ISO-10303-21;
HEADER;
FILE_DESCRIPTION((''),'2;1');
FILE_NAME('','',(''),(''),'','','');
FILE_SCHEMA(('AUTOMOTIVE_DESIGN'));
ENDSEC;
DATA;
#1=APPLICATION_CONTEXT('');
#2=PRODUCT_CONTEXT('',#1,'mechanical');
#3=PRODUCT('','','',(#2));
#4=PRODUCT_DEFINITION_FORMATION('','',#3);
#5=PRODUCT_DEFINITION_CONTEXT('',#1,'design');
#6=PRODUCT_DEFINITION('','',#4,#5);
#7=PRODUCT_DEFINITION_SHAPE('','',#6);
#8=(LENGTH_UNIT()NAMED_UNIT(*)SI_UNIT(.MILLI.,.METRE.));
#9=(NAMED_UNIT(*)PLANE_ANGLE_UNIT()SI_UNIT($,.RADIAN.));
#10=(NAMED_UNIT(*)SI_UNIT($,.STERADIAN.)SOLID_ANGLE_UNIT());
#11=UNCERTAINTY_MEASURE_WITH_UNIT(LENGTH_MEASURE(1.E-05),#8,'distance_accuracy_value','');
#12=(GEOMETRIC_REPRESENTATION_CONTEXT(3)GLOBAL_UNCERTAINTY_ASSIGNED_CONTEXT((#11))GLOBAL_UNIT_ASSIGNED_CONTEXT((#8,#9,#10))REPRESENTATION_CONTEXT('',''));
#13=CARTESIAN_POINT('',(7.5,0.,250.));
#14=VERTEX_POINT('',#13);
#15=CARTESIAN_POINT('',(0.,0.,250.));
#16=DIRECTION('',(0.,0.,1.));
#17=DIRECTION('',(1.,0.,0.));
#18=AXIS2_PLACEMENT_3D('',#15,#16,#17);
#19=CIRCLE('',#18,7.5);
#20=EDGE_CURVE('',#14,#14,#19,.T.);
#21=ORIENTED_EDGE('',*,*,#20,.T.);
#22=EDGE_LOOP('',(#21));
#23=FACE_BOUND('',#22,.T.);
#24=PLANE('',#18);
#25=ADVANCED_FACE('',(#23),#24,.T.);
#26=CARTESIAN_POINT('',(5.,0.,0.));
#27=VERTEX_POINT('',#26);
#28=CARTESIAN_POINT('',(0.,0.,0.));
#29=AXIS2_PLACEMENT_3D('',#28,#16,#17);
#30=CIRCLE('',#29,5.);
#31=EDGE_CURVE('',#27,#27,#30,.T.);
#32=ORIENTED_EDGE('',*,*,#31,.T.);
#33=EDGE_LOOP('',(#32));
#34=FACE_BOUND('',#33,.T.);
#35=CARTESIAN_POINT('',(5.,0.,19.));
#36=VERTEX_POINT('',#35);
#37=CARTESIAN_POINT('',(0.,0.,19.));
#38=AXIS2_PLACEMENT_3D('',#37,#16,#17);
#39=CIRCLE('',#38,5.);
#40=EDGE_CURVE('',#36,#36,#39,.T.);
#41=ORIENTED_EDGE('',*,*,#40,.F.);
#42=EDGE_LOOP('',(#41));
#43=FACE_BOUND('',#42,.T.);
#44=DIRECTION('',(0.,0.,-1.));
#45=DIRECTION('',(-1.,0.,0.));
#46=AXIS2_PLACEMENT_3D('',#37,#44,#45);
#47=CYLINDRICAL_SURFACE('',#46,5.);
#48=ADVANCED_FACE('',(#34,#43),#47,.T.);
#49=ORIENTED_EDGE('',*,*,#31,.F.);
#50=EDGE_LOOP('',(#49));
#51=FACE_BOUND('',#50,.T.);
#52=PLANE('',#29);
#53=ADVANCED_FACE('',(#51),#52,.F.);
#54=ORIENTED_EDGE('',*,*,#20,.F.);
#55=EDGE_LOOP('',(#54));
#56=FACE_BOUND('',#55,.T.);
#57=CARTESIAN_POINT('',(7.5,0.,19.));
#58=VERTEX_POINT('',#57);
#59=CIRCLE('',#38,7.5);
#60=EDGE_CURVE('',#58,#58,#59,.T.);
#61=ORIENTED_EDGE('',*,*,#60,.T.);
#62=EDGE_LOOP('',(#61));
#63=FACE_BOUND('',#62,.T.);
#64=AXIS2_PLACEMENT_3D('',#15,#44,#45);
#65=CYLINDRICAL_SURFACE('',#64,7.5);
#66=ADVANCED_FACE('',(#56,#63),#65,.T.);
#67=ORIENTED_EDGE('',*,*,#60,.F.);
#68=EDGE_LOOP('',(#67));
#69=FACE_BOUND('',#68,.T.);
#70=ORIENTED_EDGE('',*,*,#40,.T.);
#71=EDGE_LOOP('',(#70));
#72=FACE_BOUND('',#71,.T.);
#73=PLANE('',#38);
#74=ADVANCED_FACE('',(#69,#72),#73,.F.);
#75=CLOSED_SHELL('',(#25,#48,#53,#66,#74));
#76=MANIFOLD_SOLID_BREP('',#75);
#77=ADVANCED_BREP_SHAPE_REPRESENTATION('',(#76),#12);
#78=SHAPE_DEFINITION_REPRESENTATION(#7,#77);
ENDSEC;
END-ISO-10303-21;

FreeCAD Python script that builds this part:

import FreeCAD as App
import Part
import Sketcher
from FreeCAD import Vector
Q = App.Units.Quantity

doc = App.newDocument("Part")
body = doc.addObject("PartDesign::Body", "Body")

# Sketch on XY plane
sketch1 = body.newObject("Sketcher::SketchObject", "Sketch")
sketch1.AttachmentSupport = (doc.getObject("XY_Plane"), [""])
sketch1.MapMode = "FlatFace"
sketch1.addGeometry(Part.Circle(Vector(0, 0, 0), Vector(0, 0, 1), 7.5), False)
sketch1.addConstraint(Sketcher.Constraint("Coincident", 0, 3, -1, 1))
sketch1.addConstraint(Sketcher.Constraint("Diameter", 0, Q("15 mm")))
pad1 = body.newObject("PartDesign::Pad", "Pad")
pad1.Profile = sketch1
pad1.Length = 250

# Sketch on XY plane
sketch2 = body.newObject("Sketcher::SketchObject", "Sketch001")
sketch2.AttachmentSupport = (doc.getObject("XY_Plane"), [""])
sketch2.MapMode = "FlatFace"
sketch2.addGeometry(Part.Circle(Vector(0, 0, 0), Vector(0, 0, 1), 8.322711), False)
sketch2.addGeometry(Part.Circle(Vector(0, 0, 0), Vector(0, 0, 1), 5), False)
sketch2.addConstraint(Sketcher.Constraint("Coincident", 0, 3, -1, 1))
sketch2.addConstraint(Sketcher.Constraint("Coincident", 1, 3, -1, 1))
sketch2.addConstraint(Sketcher.Constraint("Diameter", 1, Q("10 mm")))
sketch2.addConstraint(Sketcher.Constraint("Diameter", 0, Q("16.645421 mm")))
pocket1 = body.newObject("PartDesign::Pocket", "Pocket")
pocket1.Profile = sketch2
pocket1.Length = 19
pocket1.Reversed = True

doc.recompute()
